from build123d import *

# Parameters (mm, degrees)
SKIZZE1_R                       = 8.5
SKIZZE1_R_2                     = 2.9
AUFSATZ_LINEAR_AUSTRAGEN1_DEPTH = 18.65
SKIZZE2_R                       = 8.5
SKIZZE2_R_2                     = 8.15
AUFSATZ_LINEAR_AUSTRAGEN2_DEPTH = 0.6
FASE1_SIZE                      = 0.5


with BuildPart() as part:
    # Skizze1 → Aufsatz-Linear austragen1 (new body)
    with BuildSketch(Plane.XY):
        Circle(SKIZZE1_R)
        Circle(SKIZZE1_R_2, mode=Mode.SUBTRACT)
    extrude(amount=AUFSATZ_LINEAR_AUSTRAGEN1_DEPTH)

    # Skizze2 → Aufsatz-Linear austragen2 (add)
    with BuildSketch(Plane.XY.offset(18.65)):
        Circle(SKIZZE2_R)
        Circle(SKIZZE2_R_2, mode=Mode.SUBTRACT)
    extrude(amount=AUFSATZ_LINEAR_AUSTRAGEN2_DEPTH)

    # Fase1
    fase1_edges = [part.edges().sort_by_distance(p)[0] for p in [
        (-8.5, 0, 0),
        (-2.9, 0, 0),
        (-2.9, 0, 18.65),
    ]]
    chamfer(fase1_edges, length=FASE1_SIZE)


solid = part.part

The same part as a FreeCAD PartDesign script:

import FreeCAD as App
import Part
import Sketcher

V = App.Vector
Q = App.Units.Quantity


def edges_at(feature, points):
    """Names of the edges that pass closest to the given points."""
    edges = feature.Shape.Edges
    near = lambda p: min(range(len(edges)), key=lambda i: edges[i].distToShape(Part.Vertex(*p))[0])
    return sorted({f"Edge{near(p) + 1}" for p in points})

doc = App.newDocument("Part")
params = doc.addObject("Spreadsheet::Sheet", "Params")
for row, (alias, value) in enumerate([
    ("sketch1_diameter", "17 mm"),
    ("sketch1_diameter2", "5.8 mm"),
    ("pad1_length", "18.65 mm"),
    ("sketch2_diameter", "17 mm"),
    ("sketch2_diameter2", "16.3 mm"),
    ("pad2_length", "0.6 mm"),
    ("chamfer_size", "0.5 mm"),
], start=1):
    params.set(f"A{row}", alias)
    params.set(f"B{row}", "=" + value)
    params.setAlias(f"B{row}", alias)

body = doc.addObject("PartDesign::Body", "Body")

# Sketch on XY plane
sketch1 = doc.addObject("Sketcher::SketchObject", "Sketch")
body.addObject(sketch1)
sketch1.AttachmentSupport = (doc.XY_Plane, [""])
sketch1.MapMode = "FlatFace"
sketch1.addGeometry([
    Part.Circle(V(0, 0, 0), V(0, 0, 1), 8.5),
    Part.Circle(V(0, 0, 0), V(0, 0, 1), 2.9),
], False)
sketch1.addConstraint([
    Sketcher.Constraint("Coincident", 0, 3, -1, 1),
    Sketcher.Constraint("Coincident", 1, 3, -1, 1),
    Sketcher.Constraint("Diameter", 0, Q("17 mm")),
    Sketcher.Constraint("Diameter", 1, Q("5.8 mm")),
])
sketch1.setExpression("Constraints[2]", "Params.sketch1_diameter")
sketch1.setExpression("Constraints[3]", "Params.sketch1_diameter2")
pad1 = doc.addObject("PartDesign::Pad", "Pad")
body.addObject(pad1)
pad1.Profile = sketch1
pad1.setExpression("Length", "Params.pad1_length")

# Sketch on XY plane
sketch2 = doc.addObject("Sketcher::SketchObject", "Sketch001")
body.addObject(sketch2)
sketch2.AttachmentSupport = (doc.XY_Plane, [""])
sketch2.MapMode = "FlatFace"
sketch2.AttachmentOffset = App.Placement(V(0, 0, 18.65), App.Rotation())
sketch2.addGeometry([
    Part.Circle(V(0, 0, 0), V(0, 0, 1), 8),
    Part.Circle(V(0, 0, 0), V(0, 0, 1), 8),
], False)
sketch2.addConstraint([
    Sketcher.Constraint("Coincident", 0, 3, -1, 1),
    Sketcher.Constraint("Coincident", 1, 3, -1, 1),
    Sketcher.Constraint("Diameter", 0, Q("17 mm")),
    Sketcher.Constraint("Diameter", 1, Q("16.3 mm")),
])
sketch2.setExpression("Constraints[2]", "Params.sketch2_diameter")
sketch2.setExpression("Constraints[3]", "Params.sketch2_diameter2")
pad2 = doc.addObject("PartDesign::Pad", "Pad001")
body.addObject(pad2)
pad2.Profile = sketch2
pad2.setExpression("Length", "Params.pad2_length")
doc.recompute()

chamfer = doc.addObject("PartDesign::Chamfer", "Chamfer")
body.addObject(chamfer)
chamfer.Base = (pad2, edges_at(pad2, [(-8.5, 0, 0), (-2.9, 0, 0), (-2.9, 0, 18.65)]))
chamfer.setExpression("Size", "Params.chamfer_size")

doc.recompute()
